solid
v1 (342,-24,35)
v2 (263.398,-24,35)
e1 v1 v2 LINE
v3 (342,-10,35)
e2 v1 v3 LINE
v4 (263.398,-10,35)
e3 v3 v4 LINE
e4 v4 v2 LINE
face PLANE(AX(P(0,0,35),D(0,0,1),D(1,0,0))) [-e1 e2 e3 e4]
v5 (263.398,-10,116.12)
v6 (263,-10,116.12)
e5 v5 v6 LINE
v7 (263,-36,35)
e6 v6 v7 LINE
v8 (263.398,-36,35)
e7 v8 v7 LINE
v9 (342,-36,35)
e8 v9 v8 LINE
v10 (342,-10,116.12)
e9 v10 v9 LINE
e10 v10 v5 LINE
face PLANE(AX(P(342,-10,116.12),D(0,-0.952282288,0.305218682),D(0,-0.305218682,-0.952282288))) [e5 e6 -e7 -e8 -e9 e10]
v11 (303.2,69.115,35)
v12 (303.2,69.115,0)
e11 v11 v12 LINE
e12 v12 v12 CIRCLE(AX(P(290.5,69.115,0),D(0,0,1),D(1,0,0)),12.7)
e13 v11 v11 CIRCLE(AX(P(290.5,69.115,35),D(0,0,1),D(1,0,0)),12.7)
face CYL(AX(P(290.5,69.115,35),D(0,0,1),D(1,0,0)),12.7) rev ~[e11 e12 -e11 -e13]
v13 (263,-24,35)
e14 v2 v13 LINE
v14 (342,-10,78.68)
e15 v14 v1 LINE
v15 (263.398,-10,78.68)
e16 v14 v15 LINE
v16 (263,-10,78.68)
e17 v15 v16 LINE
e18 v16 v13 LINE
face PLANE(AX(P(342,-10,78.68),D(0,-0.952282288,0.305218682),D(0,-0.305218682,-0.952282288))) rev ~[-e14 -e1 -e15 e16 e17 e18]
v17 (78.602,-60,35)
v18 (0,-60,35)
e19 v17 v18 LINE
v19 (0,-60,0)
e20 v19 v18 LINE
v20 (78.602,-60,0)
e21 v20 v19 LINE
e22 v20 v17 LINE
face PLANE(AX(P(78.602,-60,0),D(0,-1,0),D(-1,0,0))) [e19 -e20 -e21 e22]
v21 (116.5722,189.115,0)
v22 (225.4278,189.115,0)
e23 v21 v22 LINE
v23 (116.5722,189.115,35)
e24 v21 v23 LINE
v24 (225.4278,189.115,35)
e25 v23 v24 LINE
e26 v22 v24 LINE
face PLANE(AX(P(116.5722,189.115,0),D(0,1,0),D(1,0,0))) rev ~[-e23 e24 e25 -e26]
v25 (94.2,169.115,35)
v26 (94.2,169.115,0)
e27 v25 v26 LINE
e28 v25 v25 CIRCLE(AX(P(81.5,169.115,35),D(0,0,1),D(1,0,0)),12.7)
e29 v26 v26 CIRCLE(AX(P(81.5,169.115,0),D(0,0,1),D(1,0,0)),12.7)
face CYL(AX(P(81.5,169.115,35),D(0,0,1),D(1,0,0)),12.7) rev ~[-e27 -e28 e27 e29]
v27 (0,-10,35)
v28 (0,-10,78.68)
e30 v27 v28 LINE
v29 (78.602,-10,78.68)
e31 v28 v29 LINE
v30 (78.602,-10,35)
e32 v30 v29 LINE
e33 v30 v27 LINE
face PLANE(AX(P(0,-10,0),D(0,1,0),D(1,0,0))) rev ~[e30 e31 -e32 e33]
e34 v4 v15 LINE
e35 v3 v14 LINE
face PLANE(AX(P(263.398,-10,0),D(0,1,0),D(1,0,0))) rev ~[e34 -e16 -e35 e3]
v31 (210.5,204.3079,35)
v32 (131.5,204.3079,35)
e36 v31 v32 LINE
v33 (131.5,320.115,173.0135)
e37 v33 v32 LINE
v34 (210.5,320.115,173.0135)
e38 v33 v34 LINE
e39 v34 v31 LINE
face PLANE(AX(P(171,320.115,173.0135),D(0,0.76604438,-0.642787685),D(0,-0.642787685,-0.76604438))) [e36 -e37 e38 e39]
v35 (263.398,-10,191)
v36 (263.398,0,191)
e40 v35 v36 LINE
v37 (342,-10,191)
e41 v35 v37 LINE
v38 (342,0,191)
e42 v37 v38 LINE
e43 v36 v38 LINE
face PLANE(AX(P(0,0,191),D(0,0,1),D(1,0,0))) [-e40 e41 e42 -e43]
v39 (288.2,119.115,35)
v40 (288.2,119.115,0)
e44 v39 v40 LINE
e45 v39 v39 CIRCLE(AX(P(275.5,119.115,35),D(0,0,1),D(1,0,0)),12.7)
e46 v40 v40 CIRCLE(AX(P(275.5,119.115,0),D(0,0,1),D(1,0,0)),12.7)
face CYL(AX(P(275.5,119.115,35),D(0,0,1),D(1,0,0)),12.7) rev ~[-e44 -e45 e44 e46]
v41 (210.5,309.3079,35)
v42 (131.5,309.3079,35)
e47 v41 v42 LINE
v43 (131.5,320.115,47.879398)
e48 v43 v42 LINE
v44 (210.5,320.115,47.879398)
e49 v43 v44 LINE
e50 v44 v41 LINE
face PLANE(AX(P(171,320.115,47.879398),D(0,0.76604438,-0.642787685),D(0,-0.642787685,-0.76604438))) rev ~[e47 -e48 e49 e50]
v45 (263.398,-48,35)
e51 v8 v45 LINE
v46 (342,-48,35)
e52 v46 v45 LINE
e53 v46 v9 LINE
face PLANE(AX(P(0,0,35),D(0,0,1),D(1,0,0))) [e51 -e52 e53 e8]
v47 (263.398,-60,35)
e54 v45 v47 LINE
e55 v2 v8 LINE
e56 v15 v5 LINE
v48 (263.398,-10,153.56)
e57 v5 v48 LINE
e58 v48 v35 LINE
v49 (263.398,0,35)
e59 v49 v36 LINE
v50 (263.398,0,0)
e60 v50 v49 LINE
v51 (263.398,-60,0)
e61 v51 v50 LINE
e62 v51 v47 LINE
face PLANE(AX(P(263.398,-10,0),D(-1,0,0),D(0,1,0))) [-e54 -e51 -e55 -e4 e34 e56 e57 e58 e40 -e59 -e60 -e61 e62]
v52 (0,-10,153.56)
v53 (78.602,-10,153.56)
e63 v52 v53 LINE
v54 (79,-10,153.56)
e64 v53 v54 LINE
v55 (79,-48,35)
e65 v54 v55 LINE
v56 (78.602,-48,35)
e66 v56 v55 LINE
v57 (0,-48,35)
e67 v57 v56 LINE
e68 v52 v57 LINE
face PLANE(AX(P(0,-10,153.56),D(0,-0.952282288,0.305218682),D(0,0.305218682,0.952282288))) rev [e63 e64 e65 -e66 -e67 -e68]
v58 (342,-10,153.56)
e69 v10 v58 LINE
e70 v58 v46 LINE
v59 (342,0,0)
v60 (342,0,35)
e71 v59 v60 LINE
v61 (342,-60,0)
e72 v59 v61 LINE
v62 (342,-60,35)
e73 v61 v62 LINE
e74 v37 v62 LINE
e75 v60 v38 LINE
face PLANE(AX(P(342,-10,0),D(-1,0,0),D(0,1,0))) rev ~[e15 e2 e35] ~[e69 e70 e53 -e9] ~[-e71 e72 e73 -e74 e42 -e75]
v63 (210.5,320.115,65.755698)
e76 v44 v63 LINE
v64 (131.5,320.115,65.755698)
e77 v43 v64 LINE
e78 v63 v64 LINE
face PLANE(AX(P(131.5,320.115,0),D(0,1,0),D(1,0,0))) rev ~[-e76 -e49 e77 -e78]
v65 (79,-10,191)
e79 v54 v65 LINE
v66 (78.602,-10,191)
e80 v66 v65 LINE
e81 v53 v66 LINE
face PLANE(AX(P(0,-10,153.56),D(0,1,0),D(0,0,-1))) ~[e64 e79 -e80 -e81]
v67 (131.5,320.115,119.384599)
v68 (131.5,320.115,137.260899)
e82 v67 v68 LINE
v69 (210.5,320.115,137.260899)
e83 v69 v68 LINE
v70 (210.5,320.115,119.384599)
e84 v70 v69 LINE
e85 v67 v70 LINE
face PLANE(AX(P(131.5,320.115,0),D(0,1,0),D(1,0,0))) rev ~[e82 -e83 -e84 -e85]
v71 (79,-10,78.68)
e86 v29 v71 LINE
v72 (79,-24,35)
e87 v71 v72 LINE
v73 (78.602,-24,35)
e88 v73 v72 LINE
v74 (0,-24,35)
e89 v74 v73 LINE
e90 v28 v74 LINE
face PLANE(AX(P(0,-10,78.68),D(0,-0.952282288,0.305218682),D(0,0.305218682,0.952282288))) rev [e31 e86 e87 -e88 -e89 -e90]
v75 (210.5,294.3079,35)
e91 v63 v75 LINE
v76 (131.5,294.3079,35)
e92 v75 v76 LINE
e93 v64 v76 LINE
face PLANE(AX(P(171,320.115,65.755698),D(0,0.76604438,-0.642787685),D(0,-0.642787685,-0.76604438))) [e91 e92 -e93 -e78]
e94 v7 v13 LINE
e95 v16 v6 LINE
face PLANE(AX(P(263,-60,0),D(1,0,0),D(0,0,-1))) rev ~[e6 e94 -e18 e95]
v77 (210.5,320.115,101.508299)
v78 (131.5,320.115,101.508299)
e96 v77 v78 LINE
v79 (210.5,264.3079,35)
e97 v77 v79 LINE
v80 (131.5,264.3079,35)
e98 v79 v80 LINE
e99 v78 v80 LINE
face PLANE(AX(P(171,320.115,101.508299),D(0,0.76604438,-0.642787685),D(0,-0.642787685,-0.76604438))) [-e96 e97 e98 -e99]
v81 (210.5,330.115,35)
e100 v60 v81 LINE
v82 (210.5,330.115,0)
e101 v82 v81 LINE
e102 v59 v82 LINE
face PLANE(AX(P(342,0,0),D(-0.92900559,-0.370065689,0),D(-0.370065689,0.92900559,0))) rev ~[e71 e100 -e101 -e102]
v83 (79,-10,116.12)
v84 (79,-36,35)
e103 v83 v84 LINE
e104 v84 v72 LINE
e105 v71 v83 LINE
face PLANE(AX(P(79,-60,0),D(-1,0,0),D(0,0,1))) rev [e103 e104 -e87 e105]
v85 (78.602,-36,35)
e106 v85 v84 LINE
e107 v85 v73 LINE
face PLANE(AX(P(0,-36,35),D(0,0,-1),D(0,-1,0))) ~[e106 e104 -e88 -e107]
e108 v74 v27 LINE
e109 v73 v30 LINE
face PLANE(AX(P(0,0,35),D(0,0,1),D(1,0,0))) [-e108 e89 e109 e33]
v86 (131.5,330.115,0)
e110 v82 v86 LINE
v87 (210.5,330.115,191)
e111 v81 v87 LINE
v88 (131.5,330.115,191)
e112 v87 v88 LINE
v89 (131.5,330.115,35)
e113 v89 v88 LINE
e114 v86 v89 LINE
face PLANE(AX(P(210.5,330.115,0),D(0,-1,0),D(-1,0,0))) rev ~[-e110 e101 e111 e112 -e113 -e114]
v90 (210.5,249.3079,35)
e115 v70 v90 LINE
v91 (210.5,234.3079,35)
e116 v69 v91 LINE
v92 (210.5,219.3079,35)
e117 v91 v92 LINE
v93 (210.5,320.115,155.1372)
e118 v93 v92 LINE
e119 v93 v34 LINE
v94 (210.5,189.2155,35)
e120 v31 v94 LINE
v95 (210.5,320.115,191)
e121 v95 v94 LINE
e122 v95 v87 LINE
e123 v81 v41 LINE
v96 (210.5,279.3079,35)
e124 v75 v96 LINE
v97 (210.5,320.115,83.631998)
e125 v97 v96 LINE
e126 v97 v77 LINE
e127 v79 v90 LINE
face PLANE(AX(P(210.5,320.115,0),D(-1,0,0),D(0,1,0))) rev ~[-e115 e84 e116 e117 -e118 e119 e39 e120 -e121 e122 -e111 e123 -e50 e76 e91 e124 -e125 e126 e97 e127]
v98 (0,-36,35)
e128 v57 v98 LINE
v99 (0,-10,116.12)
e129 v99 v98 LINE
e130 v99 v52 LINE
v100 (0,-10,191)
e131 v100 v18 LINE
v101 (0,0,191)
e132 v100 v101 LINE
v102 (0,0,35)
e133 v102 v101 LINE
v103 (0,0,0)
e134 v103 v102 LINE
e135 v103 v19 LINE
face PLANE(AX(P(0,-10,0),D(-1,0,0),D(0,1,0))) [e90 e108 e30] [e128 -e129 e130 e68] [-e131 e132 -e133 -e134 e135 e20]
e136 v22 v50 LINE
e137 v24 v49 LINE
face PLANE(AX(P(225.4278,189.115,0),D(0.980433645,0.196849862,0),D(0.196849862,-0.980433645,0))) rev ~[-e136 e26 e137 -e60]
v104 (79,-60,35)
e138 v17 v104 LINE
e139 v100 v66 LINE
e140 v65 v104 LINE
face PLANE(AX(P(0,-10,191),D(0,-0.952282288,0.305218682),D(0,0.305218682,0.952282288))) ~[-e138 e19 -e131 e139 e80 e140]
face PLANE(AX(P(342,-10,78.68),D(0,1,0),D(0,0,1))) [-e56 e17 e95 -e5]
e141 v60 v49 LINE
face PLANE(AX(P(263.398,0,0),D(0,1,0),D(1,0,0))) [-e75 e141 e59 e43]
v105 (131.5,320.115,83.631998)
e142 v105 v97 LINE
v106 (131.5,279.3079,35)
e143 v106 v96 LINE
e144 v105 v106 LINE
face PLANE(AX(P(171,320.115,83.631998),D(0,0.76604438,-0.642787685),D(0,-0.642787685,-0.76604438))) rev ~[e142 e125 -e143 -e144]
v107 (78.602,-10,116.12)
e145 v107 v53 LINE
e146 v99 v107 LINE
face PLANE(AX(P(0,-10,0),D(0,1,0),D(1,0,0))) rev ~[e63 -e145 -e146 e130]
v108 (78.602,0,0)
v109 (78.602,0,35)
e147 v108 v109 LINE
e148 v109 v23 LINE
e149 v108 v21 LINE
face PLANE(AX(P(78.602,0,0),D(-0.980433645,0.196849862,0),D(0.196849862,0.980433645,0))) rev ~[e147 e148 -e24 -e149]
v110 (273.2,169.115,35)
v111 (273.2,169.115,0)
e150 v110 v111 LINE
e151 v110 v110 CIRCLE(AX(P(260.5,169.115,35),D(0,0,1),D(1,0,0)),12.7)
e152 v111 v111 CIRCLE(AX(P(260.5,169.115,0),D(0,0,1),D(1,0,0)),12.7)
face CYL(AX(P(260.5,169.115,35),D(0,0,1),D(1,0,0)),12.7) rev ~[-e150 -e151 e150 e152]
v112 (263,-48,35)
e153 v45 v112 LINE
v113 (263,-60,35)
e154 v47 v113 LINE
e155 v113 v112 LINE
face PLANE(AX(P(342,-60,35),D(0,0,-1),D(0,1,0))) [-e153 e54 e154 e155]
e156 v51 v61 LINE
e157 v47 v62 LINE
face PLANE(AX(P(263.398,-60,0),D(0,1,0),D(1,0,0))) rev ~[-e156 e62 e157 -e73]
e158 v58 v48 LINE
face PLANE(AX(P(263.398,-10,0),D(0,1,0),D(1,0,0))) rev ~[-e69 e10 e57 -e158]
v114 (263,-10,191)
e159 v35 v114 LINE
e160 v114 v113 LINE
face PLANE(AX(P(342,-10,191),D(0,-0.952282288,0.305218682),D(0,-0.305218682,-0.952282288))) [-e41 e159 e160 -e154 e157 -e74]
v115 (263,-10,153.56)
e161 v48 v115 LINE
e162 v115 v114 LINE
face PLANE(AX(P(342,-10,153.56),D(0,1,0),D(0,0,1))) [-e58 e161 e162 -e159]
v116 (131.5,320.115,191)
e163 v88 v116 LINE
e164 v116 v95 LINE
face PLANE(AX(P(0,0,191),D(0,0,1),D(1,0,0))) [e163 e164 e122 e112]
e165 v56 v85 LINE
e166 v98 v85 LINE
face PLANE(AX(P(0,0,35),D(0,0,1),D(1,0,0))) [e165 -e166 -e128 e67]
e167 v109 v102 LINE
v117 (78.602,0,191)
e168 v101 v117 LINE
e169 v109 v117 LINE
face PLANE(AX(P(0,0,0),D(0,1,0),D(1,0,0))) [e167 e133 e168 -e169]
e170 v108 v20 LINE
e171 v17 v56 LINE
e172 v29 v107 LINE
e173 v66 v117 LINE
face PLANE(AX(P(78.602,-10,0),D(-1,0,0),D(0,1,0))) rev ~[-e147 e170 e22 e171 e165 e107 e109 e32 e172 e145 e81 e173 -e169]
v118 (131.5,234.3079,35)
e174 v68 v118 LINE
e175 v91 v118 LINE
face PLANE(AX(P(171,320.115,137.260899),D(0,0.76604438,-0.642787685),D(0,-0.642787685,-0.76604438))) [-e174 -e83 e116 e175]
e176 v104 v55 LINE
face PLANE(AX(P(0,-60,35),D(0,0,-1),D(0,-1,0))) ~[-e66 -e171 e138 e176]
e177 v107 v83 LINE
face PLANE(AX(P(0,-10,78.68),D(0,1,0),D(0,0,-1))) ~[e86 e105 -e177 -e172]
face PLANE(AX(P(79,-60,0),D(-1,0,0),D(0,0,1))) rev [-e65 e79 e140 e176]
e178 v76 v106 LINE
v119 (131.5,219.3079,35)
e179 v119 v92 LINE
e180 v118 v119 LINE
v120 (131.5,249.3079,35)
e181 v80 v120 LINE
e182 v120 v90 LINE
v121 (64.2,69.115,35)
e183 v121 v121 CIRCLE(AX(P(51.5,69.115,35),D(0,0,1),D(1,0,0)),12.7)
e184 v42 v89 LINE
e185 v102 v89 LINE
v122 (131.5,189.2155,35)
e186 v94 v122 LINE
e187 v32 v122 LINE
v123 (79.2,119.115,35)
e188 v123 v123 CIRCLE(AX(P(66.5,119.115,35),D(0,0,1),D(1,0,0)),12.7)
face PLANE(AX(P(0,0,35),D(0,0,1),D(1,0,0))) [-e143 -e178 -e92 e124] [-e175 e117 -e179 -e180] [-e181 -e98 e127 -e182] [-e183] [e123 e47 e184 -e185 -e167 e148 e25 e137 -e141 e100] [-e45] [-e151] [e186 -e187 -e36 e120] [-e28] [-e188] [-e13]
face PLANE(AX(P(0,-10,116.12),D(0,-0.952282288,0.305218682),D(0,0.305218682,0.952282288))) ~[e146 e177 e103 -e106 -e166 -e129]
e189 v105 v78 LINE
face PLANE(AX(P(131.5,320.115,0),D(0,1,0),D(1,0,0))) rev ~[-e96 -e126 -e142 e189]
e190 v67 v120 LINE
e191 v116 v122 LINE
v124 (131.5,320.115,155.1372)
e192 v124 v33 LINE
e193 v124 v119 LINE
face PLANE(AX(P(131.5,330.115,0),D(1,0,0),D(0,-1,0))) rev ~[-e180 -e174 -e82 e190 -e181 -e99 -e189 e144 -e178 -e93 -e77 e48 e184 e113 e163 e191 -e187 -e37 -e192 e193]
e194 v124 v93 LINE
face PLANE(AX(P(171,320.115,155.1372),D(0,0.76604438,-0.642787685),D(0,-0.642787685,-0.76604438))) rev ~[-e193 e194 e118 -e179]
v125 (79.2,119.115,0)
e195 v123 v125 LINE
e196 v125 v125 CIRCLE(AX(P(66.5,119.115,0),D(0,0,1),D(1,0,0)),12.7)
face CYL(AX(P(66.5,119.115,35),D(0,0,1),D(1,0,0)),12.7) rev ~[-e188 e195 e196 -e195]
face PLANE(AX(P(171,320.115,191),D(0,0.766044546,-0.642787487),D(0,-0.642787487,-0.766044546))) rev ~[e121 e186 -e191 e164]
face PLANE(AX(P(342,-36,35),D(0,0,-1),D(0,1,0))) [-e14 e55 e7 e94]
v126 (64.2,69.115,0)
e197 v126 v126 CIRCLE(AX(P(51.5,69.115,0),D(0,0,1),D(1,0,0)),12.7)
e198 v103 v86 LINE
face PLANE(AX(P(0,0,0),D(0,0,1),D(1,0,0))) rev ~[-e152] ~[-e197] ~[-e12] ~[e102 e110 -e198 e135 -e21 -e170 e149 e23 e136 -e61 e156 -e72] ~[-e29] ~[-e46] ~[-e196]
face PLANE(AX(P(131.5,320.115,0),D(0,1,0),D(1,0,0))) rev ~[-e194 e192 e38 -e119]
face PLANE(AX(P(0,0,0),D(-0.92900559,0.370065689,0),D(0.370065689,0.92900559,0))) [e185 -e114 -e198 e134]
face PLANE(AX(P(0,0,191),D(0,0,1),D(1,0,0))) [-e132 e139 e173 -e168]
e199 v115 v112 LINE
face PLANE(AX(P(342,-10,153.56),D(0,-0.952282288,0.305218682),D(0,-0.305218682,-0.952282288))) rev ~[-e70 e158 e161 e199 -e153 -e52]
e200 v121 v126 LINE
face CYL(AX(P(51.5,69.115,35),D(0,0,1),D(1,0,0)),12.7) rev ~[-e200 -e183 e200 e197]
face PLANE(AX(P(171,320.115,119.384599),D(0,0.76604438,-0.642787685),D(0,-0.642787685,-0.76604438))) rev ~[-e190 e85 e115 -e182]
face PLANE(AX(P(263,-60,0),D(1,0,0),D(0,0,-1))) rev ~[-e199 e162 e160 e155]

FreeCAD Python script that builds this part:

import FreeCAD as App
import Part
import Sketcher
Q = App.Units.Quantity


def add_polygon(sketch, points):
    """Adds a closed chain of lines whose ends are joined by coincident constraints."""
    first, n = sketch.GeometryCount, len(points)
    for a, b in zip(points, points[1:] + points[:1]):
        sketch.addGeometry(Part.LineSegment(App.Vector(*a, 0), App.Vector(*b, 0)), False)
    for i in range(n):
        sketch.addConstraint(Sketcher.Constraint("Coincident", first + i, 2, first + (i + 1) % n, 1))

doc = App.newDocument("Part")
body = doc.addObject("PartDesign::Body", "Body")

sketch1 = body.newObject("Sketcher::SketchObject", "Sketch")
sketch1.AttachmentSupport = (doc.getObject("XY_Plane"), [""])
sketch1.MapMode = "FlatFace"
add_polygon(sketch1, [(132, 330), (0, 0), (0, -60), (79, -60), (79, 0), (117, 189), (225, 189), (263, 0), (263, -60), (342, -60), (342, 0), (210, 330)])
sketch1.addConstraint([
    Sketcher.Constraint("Vertical", 1),
    Sketcher.Constraint("Horizontal", 2),
    Sketcher.Constraint("Vertical", 3),
    Sketcher.Constraint("Horizontal", 5),
    Sketcher.Constraint("Vertical", 7),
    Sketcher.Constraint("Horizontal", 8),
    Sketcher.Constraint("Vertical", 9),
    Sketcher.Constraint("Horizontal", 11),
    Sketcher.Constraint("Coincident", 0, 2, -1, 1),
    Sketcher.Constraint("PointOnObject", 3, 2, -1),
    Sketcher.Constraint("PointOnObject", 6, 2, -1),
    Sketcher.Constraint("PointOnObject", 9, 2, -1),
    Sketcher.Constraint("Horizontal", 2, 2, 7, 2),
    Sketcher.Constraint("Equal", 2, 8),
    Sketcher.Constraint("Equal", 4, 6),
    Sketcher.Constraint("Equal", 0, 10),
    Sketcher.Constraint("DistanceX", 11, 2, 11, 1, Q("79 mm")),
    Sketcher.Constraint("DistanceX", -1, 1, 8, 2, Q("342 mm")),
    Sketcher.Constraint("DistanceY", 5, 2, 10, 2, Q("141 mm")),
    Sketcher.Constraint("DistanceX", 2, 1, 2, 2, Q("78.602 mm")),
    Sketcher.Constraint("DistanceY", 1, 2, 1, 1, Q("60 mm")),
    Sketcher.Constraint("DistanceY", -1, 1, 10, 2, Q("330.115 mm")),
    Sketcher.Constraint("DistanceX", 5, 1, 5, 2, Q("108.8556 mm")),
])
pad1 = body.newObject("PartDesign::Pad", "Pad")
pad1.Profile = sketch1
pad1.Length = 35

sketch2 = body.newObject("Sketcher::SketchObject", "Sketch001")
sketch2.AttachmentSupport = (doc.getObject("XY_Plane"), [""])
sketch2.MapMode = "FlatFace"
add_polygon(sketch2, [(79, 0), (0, 0), (0, -10), (79, -10)])
add_polygon(sketch2, [(210, 330), (132, 330), (132, 320), (210, 320)])
add_polygon(sketch2, [(342, 0), (263, 0), (263, -10), (342, -10)])
sketch2.addConstraint([
    Sketcher.Constraint("Horizontal", 0),
    Sketcher.Constraint("Vertical", 1),
    Sketcher.Constraint("Horizontal", 2),
    Sketcher.Constraint("Vertical", 3),
    Sketcher.Constraint("Horizontal", 4),
    Sketcher.Constraint("Vertical", 5),
    Sketcher.Constraint("Horizontal", 6),
    Sketcher.Constraint("Vertical", 7),
    Sketcher.Constraint("Horizontal", 8),
    Sketcher.Constraint("Vertical", 9),
    Sketcher.Constraint("Horizontal", 10),
    Sketcher.Constraint("Vertical", 11),
    Sketcher.Constraint("Coincident", 0, 2, -1, 1),
    Sketcher.Constraint("PointOnObject", 8, 2, -1),
    Sketcher.Constraint("Horizontal", 2, 2, 9, 2),
    Sketcher.Constraint("Equal", 2, 8),
    Sketcher.Constraint("Equal", 3, 5),
    Sketcher.Constraint("DistanceX", 4, 2, 4, 1, Q("79 mm")),
    Sketcher.Constraint("DistanceY", 1, 2, 1, 1, Q("10 mm")),
    Sketcher.Constraint("DistanceX", -1, 1, 10, 2, Q("342 mm")),
    Sketcher.Constraint("DistanceX", 0, 2, 0, 1, Q("78.602 mm")),
    Sketcher.Constraint("DistanceY", -1, 1, 4, 2, Q("330.115 mm")),
    Sketcher.Constraint("DistanceX", -1, 1, 4, 2, Q("131.5 mm")),
])
pad2 = body.newObject("PartDesign::Pad", "Pad001")
pad2.Profile = sketch2
pad2.Length = 191

sketch3 = body.newObject("Sketcher::SketchObject", "Sketch002")
sketch3.AttachmentSupport = (doc.getObject("YZ_Plane"), [""])
sketch3.MapMode = "FlatFace"
sketch3.AttachmentOffset = App.Placement(App.Vector(0, 0, 171), App.Rotation())
add_polygon(sketch3, [(204, 35), (320, 173), (320, 191), (189, 35)])
add_polygon(sketch3, [(320, 137), (320, 155), (219, 35), (234, 35)])
add_polygon(sketch3, [(320, 102), (320, 119), (249, 35), (264, 35)])
add_polygon(sketch3, [(320, 66), (320, 84), (279, 35), (294, 35)])
add_polygon(sketch3, [(320, 35), (320, 48), (309, 35)])
sketch3.addConstraint([
    Sketcher.Constraint("Vertical", 1),
    Sketcher.Constraint("Horizontal", 3),
    Sketcher.Constraint("Vertical", 4),
    Sketcher.Constraint("Horizontal", 6),
    Sketcher.Constraint("Vertical", 8),
    Sketcher.Constraint("Horizontal", 10),
    Sketcher.Constraint("Vertical", 12),
    Sketcher.Constraint("Horizontal", 14),
    Sketcher.Constraint("Vertical", 16),
    Sketcher.Constraint("Horizontal", 18),
    Sketcher.Constraint("Parallel", 0, 2),
    Sketcher.Constraint("Parallel", 2, 5),
    Sketcher.Constraint("Parallel", 5, 7),
    Sketcher.Constraint("Parallel", 7, 9),
    Sketcher.Constraint("Parallel", 9, 11),
    Sketcher.Constraint("Parallel", 11, 13),
    Sketcher.Constraint("Parallel", 13, 15),
    Sketcher.Constraint("Parallel", 15, 17),
    Sketcher.Constraint("Horizontal", 3, 2, 5, 2),
    Sketcher.Constraint("Horizontal", 6, 2, 9, 2),
    Sketcher.Constraint("Horizontal", 10, 2, 13, 2),
    Sketcher.Constraint("Horizontal", 14, 2, 17, 2),
    Sketcher.Constraint("Vertical", 1, 2, 4, 2),
    Sketcher.Constraint("Vertical", 7, 2, 8, 2),
    Sketcher.Constraint("Vertical", 11, 2, 12, 2),
    Sketcher.Constraint("Vertical", 15, 2, 16, 2),
    Sketcher.Constraint("Equal", 6, 10),
    Sketcher.Constraint("Equal", 10, 14),
    Sketcher.Constraint("DistanceX", 6, 1, 6, 2, Q("15 mm")),
    Sketcher.Constraint("DistanceX", 3, 2, 5, 2, Q("15 mm")),
    Sketcher.Constraint("DistanceX", 6, 2, 9, 2, Q("15 mm")),
    Sketcher.Constraint("DistanceX", 10, 2, 13, 2, Q("15 mm")),
    Sketcher.Constraint("DistanceX", 14, 2, 17, 2, Q("15 mm")),
    Sketcher.Constraint("Angle", 0, Q("50 deg")),
    Sketcher.Constraint("DistanceY", -1, 1, 1, 2, Q("191 mm")),
    Sketcher.Constraint("DistanceY", -1, 1, 2, 2, Q("35 mm")),
    Sketcher.Constraint("DistanceX", 18, 1, 18, 2, Q("10.807 mm")),
    Sketcher.Constraint("DistanceX", -1, 1, 0, 2, Q("320.115 mm")),
])
pad3 = body.newObject("PartDesign::Pad", "Pad002")
pad3.Profile = sketch3
pad3.Length = 79
pad3.Midplane = True

sketch4 = body.newObject("Sketcher::SketchObject", "Sketch003")
sketch4.AttachmentSupport = (doc.getObject("XY_Plane"), [""])
sketch4.MapMode = "FlatFace"
sketch4.AttachmentOffset = App.Placement(App.Vector(0, 0, 35), App.Rotation())
sketch4.addGeometry([
    Part.Circle(App.Vector(82, 169, 0), App.Vector(0, 0, 1), 13),
    Part.Circle(App.Vector(66, 119, 0), App.Vector(0, 0, 1), 13),
    Part.Circle(App.Vector(52, 69, 0), App.Vector(0, 0, 1), 13),
    Part.Circle(App.Vector(260, 169, 0), App.Vector(0, 0, 1), 13),
    Part.Circle(App.Vector(276, 119, 0), App.Vector(0, 0, 1), 13),
    Part.Circle(App.Vector(290, 69, 0), App.Vector(0, 0, 1), 13),
], False)
sketch4.addConstraint([
    Sketcher.Constraint("Equal", 0, 1),
    Sketcher.Constraint("Equal", 1, 2),
    Sketcher.Constraint("Equal", 2, 3),
    Sketcher.Constraint("Equal", 3, 4),
    Sketcher.Constraint("Equal", 4, 5),
    Sketcher.Constraint("Horizontal", 0, 3, 3, 3),
    Sketcher.Constraint("Horizontal", 1, 3, 4, 3),
    Sketcher.Constraint("Horizontal", 2, 3, 5, 3),
    Sketcher.Constraint("Diameter", 0, Q("25.4 mm")),
    Sketcher.Constraint("DistanceY", 1, 3, 0, 3, Q("50 mm")),
    Sketcher.Constraint("DistanceY", 2, 3, 1, 3, Q("50 mm")),
    Sketcher.Constraint("DistanceX", 1, 3, 0, 3, Q("15 mm")),
    Sketcher.Constraint("DistanceX", 2, 3, 1, 3, Q("15 mm")),
    Sketcher.Constraint("DistanceX", 0, 3, 3, 3, Q("179 mm")),
    Sketcher.Constraint("DistanceX", 3, 3, 4, 3, Q("15 mm")),
    Sketcher.Constraint("DistanceX", 4, 3, 5, 3, Q("15 mm")),
    Sketcher.Constraint("DistanceX", -1, 1, 0, 3, Q("81.5 mm")),
    Sketcher.Constraint("DistanceY", -1, 1, 0, 3, Q("169.115 mm")),
])
pocket1 = body.newObject("PartDesign::Pocket", "Pocket")
pocket1.Profile = sketch4
pocket1.Length = 35

sketch5 = body.newObject("Sketcher::SketchObject", "Sketch004")
sketch5.AttachmentSupport = (doc.getObject("YZ_Plane"), [""])
sketch5.MapMode = "FlatFace"
sketch5.AttachmentOffset = App.Placement(App.Vector(0, 0, 342), App.Rotation())
add_polygon(sketch5, [(-10, 154), (-10, 191), (-60, 35), (-48, 35)])
add_polygon(sketch5, [(-10, 79), (-10, 116), (-36, 35), (-24, 35)])
sketch5.addConstraint([
    Sketcher.Constraint("Vertical", 0),
    Sketcher.Constraint("Horizontal", 2),
    Sketcher.Constraint("Vertical", 4),
    Sketcher.Constraint("Horizontal", 6),
    Sketcher.Constraint("Parallel", 1, 3),
    Sketcher.Constraint("Parallel", 3, 5),
    Sketcher.Constraint("Parallel", 5, 7),
    Sketcher.Constraint("Horizontal", 2, 2, 5, 2),
    Sketcher.Constraint("Vertical", 3, 2, 4, 2),
    Sketcher.Constraint("Equal", 2, 6),
    Sketcher.Constraint("DistanceX", 2, 1, 2, 2, Q("12 mm")),
    Sketcher.Constraint("DistanceX", 0, 2, -1, 1, Q("10 mm")),
    Sketcher.Constraint("DistanceX", 2, 2, 5, 2, Q("12 mm")),
    Sketcher.Constraint("DistanceY", -1, 1, 0, 2, Q("191 mm")),
    Sketcher.Constraint("DistanceX", 1, 2, -1, 1, Q("60 mm")),
    Sketcher.Constraint("DistanceY", -1, 1, 1, 2, Q("35 mm")),
])
pad4 = body.newObject("PartDesign::Pad", "Pad003")
pad4.Profile = sketch5
pad4.Length = 79
pad4.Reversed = True
doc.recompute()

datumplane = body.newObject("PartDesign::Plane", "DatumPlane")
datumplane.AttachmentSupport = (doc.getObject("YZ_Plane"), [""])
datumplane.MapMode = "FlatFace"
datumplane.AttachmentOffset = App.Placement(App.Vector(0, 0, 171), App.Rotation())
mirrored = body.newObject("PartDesign::Mirrored", "Mirrored")
mirrored.Originals = [pad4]
mirrored.MirrorPlane = (datumplane, [""])
body.Tip = mirrored

doc.recompute()
